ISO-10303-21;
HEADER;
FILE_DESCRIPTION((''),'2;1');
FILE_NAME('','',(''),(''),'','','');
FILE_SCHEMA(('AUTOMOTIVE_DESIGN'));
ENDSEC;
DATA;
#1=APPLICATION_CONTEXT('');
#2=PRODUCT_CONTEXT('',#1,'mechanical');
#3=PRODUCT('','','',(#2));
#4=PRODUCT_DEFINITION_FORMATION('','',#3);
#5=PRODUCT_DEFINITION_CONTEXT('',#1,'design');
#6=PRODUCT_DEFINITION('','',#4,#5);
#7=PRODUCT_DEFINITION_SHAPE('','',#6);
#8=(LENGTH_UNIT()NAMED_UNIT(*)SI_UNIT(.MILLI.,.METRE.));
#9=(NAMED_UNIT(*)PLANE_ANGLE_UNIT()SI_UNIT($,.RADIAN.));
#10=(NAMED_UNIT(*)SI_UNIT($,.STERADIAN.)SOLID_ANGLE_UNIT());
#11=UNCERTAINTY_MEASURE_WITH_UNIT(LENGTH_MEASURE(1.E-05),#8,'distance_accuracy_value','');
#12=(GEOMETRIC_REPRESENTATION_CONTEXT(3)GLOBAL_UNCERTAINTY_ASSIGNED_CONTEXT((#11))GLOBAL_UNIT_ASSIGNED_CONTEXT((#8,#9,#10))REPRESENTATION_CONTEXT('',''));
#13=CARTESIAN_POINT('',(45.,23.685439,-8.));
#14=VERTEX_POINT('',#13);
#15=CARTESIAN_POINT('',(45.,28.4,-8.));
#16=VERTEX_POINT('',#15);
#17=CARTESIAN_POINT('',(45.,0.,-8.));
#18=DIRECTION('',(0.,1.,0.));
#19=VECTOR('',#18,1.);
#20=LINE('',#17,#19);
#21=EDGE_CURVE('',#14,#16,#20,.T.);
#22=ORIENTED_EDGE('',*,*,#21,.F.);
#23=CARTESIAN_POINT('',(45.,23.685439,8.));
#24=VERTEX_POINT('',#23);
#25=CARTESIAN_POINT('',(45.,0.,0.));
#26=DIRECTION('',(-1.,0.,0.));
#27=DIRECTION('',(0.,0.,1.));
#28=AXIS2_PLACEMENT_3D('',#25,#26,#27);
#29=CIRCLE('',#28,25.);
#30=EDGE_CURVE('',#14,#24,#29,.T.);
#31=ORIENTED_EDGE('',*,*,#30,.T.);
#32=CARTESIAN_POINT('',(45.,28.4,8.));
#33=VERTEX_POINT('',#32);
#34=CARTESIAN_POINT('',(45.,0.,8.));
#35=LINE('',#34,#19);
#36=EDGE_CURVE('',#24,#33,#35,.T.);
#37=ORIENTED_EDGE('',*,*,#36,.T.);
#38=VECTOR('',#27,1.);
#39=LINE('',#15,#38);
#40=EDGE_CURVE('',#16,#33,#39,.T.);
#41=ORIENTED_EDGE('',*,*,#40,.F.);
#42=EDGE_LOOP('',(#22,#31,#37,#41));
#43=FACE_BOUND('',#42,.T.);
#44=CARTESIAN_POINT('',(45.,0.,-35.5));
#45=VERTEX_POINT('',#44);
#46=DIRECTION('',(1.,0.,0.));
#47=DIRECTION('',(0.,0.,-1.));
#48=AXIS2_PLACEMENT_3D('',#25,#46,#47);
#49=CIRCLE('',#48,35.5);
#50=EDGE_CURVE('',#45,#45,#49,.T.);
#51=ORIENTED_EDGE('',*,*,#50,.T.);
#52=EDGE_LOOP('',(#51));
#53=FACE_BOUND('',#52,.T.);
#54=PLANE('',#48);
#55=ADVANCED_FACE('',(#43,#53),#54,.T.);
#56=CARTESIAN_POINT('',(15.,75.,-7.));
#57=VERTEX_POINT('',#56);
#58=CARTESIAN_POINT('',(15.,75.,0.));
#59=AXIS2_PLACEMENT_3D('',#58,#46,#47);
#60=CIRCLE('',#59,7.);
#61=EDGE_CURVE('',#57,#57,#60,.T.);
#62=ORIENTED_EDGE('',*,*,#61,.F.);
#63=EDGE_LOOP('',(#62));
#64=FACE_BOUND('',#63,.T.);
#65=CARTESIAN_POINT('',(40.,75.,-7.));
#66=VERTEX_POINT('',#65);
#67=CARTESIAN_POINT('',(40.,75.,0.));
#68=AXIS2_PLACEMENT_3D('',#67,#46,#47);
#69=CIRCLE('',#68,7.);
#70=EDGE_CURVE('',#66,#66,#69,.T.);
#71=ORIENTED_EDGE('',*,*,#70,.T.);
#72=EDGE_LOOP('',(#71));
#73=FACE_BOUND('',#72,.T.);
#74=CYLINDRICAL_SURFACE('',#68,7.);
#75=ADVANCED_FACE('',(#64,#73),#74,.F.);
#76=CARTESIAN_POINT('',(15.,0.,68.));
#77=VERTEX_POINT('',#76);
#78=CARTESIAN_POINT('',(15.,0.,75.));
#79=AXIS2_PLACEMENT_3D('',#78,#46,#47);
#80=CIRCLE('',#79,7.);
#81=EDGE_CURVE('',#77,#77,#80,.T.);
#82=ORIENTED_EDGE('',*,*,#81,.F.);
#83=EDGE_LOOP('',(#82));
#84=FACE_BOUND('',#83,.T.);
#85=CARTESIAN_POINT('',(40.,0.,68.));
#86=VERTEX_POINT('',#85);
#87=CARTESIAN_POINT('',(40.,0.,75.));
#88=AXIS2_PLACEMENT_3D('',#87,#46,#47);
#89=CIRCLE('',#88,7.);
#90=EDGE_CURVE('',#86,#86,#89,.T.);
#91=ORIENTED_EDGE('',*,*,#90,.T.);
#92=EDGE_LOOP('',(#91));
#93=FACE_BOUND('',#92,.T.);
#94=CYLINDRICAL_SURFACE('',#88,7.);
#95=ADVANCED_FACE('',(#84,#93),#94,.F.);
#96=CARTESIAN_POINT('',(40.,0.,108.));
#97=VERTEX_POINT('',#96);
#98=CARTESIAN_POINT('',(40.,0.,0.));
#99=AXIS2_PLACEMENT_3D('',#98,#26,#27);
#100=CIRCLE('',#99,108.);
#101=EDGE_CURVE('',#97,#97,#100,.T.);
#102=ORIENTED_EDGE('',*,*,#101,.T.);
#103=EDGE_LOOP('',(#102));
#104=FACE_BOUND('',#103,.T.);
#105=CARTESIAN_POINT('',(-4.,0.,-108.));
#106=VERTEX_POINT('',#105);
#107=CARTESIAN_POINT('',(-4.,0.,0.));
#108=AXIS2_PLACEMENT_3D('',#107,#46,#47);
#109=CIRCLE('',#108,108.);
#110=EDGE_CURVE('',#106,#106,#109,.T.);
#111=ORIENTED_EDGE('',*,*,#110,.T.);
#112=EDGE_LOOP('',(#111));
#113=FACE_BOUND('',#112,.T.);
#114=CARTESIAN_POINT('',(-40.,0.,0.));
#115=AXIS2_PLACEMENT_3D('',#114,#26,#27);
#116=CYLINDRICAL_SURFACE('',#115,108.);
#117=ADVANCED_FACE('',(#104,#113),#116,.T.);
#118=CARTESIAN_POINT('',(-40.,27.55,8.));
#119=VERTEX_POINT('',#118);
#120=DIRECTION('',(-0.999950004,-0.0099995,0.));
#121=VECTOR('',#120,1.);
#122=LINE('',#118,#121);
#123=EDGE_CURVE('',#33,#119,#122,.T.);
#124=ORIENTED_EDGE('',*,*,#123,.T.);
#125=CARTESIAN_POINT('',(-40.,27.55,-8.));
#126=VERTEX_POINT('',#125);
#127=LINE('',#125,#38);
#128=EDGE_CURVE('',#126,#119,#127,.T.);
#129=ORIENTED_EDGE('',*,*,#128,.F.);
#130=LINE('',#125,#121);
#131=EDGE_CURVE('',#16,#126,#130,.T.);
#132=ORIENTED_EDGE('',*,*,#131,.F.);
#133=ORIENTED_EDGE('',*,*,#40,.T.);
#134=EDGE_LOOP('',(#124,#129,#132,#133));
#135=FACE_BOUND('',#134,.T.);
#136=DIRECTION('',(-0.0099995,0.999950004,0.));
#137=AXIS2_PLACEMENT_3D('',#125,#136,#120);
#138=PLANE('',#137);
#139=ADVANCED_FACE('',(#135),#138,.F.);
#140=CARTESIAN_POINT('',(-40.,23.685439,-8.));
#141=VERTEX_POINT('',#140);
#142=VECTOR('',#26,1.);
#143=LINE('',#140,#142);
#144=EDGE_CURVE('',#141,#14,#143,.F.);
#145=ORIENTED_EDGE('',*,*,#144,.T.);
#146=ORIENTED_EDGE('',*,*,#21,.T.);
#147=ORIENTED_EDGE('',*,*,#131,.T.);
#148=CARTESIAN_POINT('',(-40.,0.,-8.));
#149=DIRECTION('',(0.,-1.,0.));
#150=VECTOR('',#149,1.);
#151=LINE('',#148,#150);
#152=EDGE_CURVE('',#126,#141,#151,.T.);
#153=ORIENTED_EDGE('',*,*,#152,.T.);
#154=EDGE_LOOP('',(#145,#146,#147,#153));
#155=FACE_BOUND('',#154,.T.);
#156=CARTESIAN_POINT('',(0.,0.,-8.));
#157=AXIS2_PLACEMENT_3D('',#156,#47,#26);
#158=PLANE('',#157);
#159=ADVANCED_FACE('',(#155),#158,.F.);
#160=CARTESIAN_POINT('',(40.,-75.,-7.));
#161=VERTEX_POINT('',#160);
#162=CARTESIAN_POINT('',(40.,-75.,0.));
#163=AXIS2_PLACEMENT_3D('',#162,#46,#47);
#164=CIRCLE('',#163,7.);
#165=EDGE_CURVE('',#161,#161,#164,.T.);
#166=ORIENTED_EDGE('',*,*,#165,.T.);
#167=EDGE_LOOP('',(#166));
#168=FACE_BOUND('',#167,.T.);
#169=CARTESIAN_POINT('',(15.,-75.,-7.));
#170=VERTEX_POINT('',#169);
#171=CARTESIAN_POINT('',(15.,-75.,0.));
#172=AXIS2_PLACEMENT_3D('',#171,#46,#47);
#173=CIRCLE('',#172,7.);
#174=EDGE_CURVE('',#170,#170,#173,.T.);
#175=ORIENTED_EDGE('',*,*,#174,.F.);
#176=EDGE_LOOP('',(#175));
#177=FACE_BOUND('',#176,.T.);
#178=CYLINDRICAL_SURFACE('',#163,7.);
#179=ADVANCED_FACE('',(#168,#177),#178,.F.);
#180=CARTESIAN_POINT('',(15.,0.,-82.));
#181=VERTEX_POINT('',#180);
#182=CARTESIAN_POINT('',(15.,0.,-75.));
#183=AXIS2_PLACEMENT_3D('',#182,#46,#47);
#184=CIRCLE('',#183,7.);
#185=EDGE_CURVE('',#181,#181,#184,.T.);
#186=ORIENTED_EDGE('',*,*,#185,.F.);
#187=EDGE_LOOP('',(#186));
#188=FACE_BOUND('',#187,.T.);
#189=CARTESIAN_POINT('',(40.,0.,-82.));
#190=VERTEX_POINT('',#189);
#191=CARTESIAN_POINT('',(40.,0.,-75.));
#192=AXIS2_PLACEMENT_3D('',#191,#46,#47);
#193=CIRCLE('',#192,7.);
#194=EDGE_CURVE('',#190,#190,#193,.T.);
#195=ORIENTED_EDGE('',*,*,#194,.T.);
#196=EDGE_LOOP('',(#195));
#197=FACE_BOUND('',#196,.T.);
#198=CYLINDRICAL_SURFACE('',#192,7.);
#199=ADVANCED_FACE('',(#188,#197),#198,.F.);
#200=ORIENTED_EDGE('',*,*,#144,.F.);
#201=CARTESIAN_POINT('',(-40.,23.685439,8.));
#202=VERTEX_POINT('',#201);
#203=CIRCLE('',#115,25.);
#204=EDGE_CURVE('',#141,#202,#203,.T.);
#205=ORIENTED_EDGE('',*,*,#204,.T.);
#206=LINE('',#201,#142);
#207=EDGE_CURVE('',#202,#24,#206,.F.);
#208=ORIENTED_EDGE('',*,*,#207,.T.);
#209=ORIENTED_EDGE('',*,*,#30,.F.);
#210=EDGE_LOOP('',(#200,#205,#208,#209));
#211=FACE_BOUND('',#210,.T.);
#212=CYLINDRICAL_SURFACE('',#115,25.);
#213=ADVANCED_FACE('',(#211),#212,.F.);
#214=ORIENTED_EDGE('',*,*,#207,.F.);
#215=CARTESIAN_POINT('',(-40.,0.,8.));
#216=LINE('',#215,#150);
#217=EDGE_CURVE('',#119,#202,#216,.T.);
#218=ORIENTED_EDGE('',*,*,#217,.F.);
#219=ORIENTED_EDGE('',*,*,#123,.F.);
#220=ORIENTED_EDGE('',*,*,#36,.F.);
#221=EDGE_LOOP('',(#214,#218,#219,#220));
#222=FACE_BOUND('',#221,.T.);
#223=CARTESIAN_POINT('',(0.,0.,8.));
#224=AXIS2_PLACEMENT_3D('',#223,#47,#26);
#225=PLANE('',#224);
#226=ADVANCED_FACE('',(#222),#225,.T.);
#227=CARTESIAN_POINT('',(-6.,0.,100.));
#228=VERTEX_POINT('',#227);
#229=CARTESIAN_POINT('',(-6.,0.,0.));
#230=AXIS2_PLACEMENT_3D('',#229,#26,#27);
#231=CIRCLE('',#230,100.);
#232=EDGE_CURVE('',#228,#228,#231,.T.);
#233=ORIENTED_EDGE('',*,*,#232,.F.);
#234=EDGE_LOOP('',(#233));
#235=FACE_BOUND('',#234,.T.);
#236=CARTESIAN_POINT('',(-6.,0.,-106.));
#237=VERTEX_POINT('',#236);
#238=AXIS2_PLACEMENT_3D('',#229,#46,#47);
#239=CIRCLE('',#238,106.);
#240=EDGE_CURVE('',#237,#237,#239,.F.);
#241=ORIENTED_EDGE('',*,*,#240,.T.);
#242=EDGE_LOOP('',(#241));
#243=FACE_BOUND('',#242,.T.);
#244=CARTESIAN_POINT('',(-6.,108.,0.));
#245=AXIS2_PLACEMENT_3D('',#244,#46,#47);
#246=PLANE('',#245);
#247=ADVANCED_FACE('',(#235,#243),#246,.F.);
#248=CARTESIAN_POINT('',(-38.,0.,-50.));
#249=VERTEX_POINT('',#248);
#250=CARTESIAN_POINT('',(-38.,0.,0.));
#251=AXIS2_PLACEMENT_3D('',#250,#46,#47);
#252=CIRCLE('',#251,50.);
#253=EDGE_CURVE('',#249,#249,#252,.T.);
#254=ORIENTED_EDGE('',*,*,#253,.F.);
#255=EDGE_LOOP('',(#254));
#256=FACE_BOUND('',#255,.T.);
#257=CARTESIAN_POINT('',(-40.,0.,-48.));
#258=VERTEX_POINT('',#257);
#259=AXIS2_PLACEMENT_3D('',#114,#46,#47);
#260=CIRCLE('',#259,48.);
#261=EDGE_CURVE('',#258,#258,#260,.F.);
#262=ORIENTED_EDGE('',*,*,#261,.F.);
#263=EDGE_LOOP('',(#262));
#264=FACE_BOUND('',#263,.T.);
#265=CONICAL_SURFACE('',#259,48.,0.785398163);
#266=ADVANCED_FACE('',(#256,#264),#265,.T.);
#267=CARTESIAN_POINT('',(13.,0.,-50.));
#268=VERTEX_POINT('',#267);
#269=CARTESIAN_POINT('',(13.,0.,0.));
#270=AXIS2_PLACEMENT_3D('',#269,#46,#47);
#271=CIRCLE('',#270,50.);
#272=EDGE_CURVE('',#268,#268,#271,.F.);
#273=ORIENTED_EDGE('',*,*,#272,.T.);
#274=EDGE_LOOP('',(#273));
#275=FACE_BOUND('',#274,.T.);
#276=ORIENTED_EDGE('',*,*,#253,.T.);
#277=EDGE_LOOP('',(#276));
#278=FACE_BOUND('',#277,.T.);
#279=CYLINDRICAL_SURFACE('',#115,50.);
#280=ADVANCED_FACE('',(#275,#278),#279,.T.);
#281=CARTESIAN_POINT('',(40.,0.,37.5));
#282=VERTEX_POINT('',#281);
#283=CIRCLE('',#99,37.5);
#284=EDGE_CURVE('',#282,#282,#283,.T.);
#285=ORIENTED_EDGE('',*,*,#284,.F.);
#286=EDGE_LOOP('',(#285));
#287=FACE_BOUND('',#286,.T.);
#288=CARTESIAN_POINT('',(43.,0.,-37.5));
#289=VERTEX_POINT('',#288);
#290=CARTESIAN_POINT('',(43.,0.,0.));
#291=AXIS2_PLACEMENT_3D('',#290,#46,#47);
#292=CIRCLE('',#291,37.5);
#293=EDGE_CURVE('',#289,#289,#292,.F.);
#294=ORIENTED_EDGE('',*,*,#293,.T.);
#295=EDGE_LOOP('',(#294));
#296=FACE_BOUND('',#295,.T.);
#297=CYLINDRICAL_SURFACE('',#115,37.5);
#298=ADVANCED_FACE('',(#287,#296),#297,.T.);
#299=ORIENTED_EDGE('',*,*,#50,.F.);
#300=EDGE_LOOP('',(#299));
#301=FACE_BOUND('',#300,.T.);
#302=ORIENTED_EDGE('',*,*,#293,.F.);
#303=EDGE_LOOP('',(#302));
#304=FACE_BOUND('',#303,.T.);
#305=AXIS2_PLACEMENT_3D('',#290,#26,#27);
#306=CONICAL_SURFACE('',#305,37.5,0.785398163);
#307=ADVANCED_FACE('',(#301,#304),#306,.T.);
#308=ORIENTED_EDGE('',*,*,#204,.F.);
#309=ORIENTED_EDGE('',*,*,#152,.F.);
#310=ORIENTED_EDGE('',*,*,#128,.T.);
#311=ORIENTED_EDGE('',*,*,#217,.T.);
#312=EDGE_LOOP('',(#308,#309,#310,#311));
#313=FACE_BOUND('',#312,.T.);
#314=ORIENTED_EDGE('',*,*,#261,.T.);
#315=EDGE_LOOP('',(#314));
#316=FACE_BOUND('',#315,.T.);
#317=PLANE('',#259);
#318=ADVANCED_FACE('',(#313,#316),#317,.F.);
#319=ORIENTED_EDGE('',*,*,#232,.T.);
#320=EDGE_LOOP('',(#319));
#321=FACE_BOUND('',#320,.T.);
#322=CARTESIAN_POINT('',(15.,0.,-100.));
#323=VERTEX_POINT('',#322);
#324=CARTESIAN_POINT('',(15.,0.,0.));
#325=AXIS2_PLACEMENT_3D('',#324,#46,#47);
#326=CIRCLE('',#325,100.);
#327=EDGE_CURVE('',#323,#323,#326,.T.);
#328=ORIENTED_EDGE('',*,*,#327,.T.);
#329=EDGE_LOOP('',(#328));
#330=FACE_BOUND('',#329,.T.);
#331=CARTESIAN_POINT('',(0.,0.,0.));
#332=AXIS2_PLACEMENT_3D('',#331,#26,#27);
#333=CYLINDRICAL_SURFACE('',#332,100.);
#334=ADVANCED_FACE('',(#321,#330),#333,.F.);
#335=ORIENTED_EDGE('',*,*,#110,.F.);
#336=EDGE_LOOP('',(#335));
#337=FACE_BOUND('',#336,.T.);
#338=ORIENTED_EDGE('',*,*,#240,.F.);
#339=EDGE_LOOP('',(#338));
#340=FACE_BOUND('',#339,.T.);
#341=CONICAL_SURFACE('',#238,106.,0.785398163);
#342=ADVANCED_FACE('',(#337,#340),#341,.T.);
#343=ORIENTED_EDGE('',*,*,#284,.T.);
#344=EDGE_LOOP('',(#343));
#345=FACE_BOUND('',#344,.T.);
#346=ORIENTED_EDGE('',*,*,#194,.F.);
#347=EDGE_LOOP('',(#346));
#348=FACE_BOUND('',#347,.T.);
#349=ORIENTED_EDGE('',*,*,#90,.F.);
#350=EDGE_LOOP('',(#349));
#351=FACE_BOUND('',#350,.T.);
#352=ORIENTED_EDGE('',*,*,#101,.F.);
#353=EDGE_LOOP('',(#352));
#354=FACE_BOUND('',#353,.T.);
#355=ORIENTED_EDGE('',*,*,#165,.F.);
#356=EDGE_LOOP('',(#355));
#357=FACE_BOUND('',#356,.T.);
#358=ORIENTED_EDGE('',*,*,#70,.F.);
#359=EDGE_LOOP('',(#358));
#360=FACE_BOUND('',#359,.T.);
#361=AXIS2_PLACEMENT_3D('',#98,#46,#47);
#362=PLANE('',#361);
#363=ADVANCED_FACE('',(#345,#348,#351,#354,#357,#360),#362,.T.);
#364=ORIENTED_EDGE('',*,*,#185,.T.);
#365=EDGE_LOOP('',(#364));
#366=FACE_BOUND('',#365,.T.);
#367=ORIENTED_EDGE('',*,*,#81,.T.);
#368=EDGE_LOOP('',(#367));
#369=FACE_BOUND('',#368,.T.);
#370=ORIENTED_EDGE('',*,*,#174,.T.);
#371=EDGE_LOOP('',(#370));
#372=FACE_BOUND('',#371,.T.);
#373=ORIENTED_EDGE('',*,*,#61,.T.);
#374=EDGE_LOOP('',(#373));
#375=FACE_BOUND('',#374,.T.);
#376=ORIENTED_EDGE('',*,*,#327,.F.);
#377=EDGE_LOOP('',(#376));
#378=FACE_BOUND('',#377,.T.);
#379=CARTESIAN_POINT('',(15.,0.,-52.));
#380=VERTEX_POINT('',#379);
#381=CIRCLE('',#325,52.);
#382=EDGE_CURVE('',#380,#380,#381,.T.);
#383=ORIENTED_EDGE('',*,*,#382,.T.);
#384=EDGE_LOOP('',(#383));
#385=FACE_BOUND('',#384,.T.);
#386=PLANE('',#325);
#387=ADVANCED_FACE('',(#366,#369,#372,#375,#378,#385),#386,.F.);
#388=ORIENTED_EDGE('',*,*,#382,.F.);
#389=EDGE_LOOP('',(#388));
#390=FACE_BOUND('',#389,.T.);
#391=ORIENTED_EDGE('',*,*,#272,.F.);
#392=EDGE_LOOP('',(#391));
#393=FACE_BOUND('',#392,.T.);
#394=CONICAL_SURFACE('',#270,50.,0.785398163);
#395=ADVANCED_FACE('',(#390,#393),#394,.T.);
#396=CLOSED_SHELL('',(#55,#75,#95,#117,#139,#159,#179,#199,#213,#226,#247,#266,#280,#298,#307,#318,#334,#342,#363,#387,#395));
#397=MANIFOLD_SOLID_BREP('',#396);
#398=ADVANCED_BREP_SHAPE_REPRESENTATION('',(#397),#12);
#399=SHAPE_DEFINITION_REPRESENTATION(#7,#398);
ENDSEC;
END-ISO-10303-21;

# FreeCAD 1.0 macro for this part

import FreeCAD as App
import Part
import Sketcher
Q = App.Units.Quantity


def edges_at(feature, points):
    """Names of the edges that pass closest to the given points."""
    edges = feature.Shape.Edges
    near = lambda p: min(range(len(edges)), key=lambda i: edges[i].distToShape(Part.Vertex(*p))[0])
    return sorted({f"Edge{near(p) + 1}" for p in points})


def add_polygon(sketch, points):
    """Adds a closed chain of lines whose ends are joined by coincident constraints."""
    first, n = sketch.GeometryCount, len(points)
    for a, b in zip(points, points[1:] + points[:1]):
        sketch.addGeometry(Part.LineSegment(App.Vector(*a, 0), App.Vector(*b, 0)), False)
    for i in range(n):
        sketch.addConstraint(Sketcher.Constraint("Coincident", first + i, 2, first + (i + 1) % n, 1))

doc = App.newDocument("Part")
body = doc.addObject("PartDesign::Body", "Body")

sketch1 = body.newObject("Sketcher::SketchObject", "Sketch")
sketch1.AttachmentSupport = (doc.getObject("XY_Plane"), [""])
sketch1.MapMode = "FlatFace"
add_polygon(sketch1, [(-40, 25), (45, 25), (45, 38), (40, 38), (40, 108), (15, 108), (15, 50), (-40, 50)])
sketch1.addConstraint([
    Sketcher.Constraint("Horizontal", 0),
    Sketcher.Constraint("Vertical", 1),
    Sketcher.Constraint("Horizontal", 2),
    Sketcher.Constraint("Vertical", 3),
    Sketcher.Constraint("Horizontal", 4),
    Sketcher.Constraint("Vertical", 5),
    Sketcher.Constraint("Horizontal", 6),
    Sketcher.Constraint("Vertical", 7),
    Sketcher.Constraint("Equal", 4, 7),
    Sketcher.Constraint("DistanceX", 0, 1, 0, 2, Q("85 mm")),
    Sketcher.Constraint("DistanceX", 2, 2, 2, 1, Q("5 mm")),
    Sketcher.Constraint("DistanceX", 4, 2, 4, 1, Q("25 mm")),
    Sketcher.Constraint("DistanceY", 5, 2, 5, 1, Q("58 mm")),
    Sketcher.Constraint("DistanceY", 1, 1, 1, 2, Q("12.5 mm")),
    Sketcher.Constraint("DistanceX", -1, 1, 0, 2, Q("45 mm")),
    Sketcher.Constraint("DistanceY", -1, 1, 0, 2, Q("25 mm")),
])
revolution = body.newObject("PartDesign::Revolution", "Revolution")
revolution.Profile = sketch1
revolution.ReferenceAxis = (sketch1, ["H_Axis"])
revolution.Angle = 360

sketch2 = body.newObject("Sketcher::SketchObject", "Sketch001")
sketch2.AttachmentSupport = (doc.getObject("YZ_Plane"), [""])
sketch2.MapMode = "FlatFace"
sketch2.AttachmentOffset = App.Placement(App.Vector(0, 0, 40), App.Rotation())
sketch2.addGeometry([
    Part.Circle(App.Vector(0, 75, 0), App.Vector(0, 0, 1), 7),
    Part.Circle(App.Vector(75, 0, 0), App.Vector(0, 0, 1), 7),
    Part.Circle(App.Vector(0, -75, 0), App.Vector(0, 0, 1), 7),
    Part.Circle(App.Vector(-75, 0, 0), App.Vector(0, 0, 1), 7),
], False)
sketch2.addConstraint([
    Sketcher.Constraint("Equal", 0, 1),
    Sketcher.Constraint("Equal", 1, 2),
    Sketcher.Constraint("Equal", 2, 3),
    Sketcher.Constraint("Symmetric", 0, 3, 2, 3, -1, 1),
    Sketcher.Constraint("Symmetric", 1, 3, 3, 3, -1, 1),
    Sketcher.Constraint("PointOnObject", 0, 3, -2),
    Sketcher.Constraint("PointOnObject", 1, 3, -1),
    Sketcher.Constraint("Diameter", 0, Q("14 mm")),
    Sketcher.Constraint("DistanceY", -1, 1, 0, 3, Q("75 mm")),
    Sketcher.Constraint("DistanceX", -1, 1, 1, 3, Q("75 mm")),
])
doc.recompute()
hole = body.newObject("PartDesign::Hole", "Hole")
hole.Profile = sketch2
hole.ThreadType = "None"
hole.Diameter = 14
hole.DepthType = "ThroughAll"

sketch3 = body.newObject("Sketcher::SketchObject", "Sketch002")
sketch3.AttachmentSupport = (doc.getObject("XY_Plane"), [""])
sketch3.MapMode = "FlatFace"
add_polygon(sketch3, [(-6, 108), (-6, 100), (15, 100), (15, 108)])
sketch3.addConstraint([
    Sketcher.Constraint("Vertical", 0),
    Sketcher.Constraint("Horizontal", 1),
    Sketcher.Constraint("Vertical", 2),
    Sketcher.Constraint("Horizontal", 3),
    Sketcher.Constraint("DistanceX", 1, 1, 1, 2, Q("21 mm")),
    Sketcher.Constraint("DistanceY", 0, 2, 0, 1, Q("8 mm")),
    Sketcher.Constraint("DistanceX", 0, 2, -1, 1, Q("6 mm")),
    Sketcher.Constraint("DistanceY", -1, 1, 0, 2, Q("100 mm")),
])
revolution2 = body.newObject("PartDesign::Revolution", "Revolution001")
revolution2.Profile = sketch3
revolution2.ReferenceAxis = (sketch3, ["H_Axis"])
revolution2.Angle = 360

sketch4 = body.newObject("Sketcher::SketchObject", "Sketch003")
sketch4.AttachmentSupport = (doc.getObject("XY_Plane"), [""])
sketch4.MapMode = "FlatFace"
add_polygon(sketch4, [(-40, 0), (45, 0), (45, 28), (-40, 28)])
sketch4.addConstraint([
    Sketcher.Constraint("Horizontal", 0),
    Sketcher.Constraint("Vertical", 1),
    Sketcher.Constraint("Vertical", 3),
    Sketcher.Constraint("PointOnObject", 0, 2, -1),
    Sketcher.Constraint("DistanceX", 0, 1, 0, 2, Q("85 mm")),
    Sketcher.Constraint("DistanceY", 1, 1, 1, 2, Q("28.4 mm")),
    Sketcher.Constraint("DistanceX", -1, 1, 0, 2, Q("45 mm")),
    Sketcher.Constraint("DistanceY", 3, 2, 3, 1, Q("27.55 mm")),
])
pocket1 = body.newObject("PartDesign::Pocket", "Pocket")
pocket1.Profile = sketch4
pocket1.Length = 16
pocket1.Midplane = True
doc.recompute()

chamfer = body.newObject("PartDesign::Chamfer", "Chamfer")
chamfer.Base = (pocket1, edges_at(pocket1, [
    (45, 0, -37.5),
    (-6, 0, -108),
    (-40, 0, -50),
    (15, 0, -50),
]))
chamfer.Size = 2

doc.recompute()
